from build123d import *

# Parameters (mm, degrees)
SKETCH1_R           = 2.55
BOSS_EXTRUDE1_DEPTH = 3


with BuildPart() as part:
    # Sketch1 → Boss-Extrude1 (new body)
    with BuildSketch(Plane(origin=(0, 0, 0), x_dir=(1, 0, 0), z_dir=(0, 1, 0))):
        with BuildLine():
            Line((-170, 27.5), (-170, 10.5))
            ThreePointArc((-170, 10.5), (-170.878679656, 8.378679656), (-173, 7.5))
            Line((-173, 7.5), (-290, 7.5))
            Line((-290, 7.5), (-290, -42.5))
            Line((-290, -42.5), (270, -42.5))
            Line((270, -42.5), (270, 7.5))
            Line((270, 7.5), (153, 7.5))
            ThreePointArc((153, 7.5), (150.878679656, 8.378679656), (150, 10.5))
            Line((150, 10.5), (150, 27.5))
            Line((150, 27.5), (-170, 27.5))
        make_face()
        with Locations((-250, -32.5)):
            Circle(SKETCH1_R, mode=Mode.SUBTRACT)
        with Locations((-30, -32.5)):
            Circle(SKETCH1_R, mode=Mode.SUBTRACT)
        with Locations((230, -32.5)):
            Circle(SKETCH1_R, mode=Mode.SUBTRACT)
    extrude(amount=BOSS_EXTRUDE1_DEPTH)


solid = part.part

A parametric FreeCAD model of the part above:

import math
import FreeCAD as App
import Part
import Sketcher
from FreeCAD import Vector
Q = App.Units.Quantity

doc = App.newDocument("Part")
body = doc.addObject("PartDesign::Body", "Body")

# Sketch on XZ plane
sketch1 = doc.addObject("Sketcher::SketchObject", "Sketch")
body.addObject(sketch1)
sketch1.AttachmentSupport = (doc.XZ_Plane, [""])
sketch1.MapMode = "FlatFace"
sketch1.addGeometry(Part.LineSegment(Vector(-170, -27.5, 0), Vector(-170, -10.5, 0)), False)
sketch1.addGeometry(Part.ArcOfCircle(Part.Circle(Vector(-173, -10.5, 0), Vector(0, 0, 1), 3), math.radians(0), math.radians(90)), False)
sketch1.addGeometry(Part.LineSegment(Vector(-173, -7.5, 0), Vector(-290, -7.5, 0)), False)
sketch1.addGeometry(Part.LineSegment(Vector(-290, -7.5, 0), Vector(-290, 42.5, 0)), False)
sketch1.addGeometry(Part.LineSegment(Vector(-290, 42.5, 0), Vector(270, 42.5, 0)), False)
sketch1.addGeometry(Part.LineSegment(Vector(270, 42.5, 0), Vector(270, -7.5, 0)), False)
sketch1.addGeometry(Part.LineSegment(Vector(270, -7.5, 0), Vector(153, -7.5, 0)), False)
sketch1.addGeometry(Part.ArcOfCircle(Part.Circle(Vector(153, -10.5, 0), Vector(0, 0, 1), 3), math.radians(90), math.radians(180)), False)
sketch1.addGeometry(Part.LineSegment(Vector(150, -10.5, 0), Vector(150, -27.5, 0)), False)
sketch1.addGeometry(Part.LineSegment(Vector(150, -27.5, 0), Vector(-170, -27.5, 0)), False)
sketch1.addGeometry(Part.Circle(Vector(-250, 32.5, 0), Vector(0, 0, 1), 2.55), False)
sketch1.addGeometry(Part.Circle(Vector(-30, 32.5, 0), Vector(0, 0, 1), 2.55), False)
sketch1.addGeometry(Part.Circle(Vector(230, 32.5, 0), Vector(0, 0, 1), 2.55), False)
sketch1.addConstraint(Sketcher.Constraint("Tangent", 0, 2, 1, 1))
sketch1.addConstraint(Sketcher.Constraint("Tangent", 1, 2, 2, 1))
sketch1.addConstraint(Sketcher.Constraint("Coincident", 2, 2, 3, 1))
sketch1.addConstraint(Sketcher.Constraint("Coincident", 3, 2, 4, 1))
sketch1.addConstraint(Sketcher.Constraint("Coincident", 4, 2, 5, 1))
sketch1.addConstraint(Sketcher.Constraint("Coincident", 5, 2, 6, 1))
sketch1.addConstraint(Sketcher.Constraint("Tangent", 6, 2, 7, 1))
sketch1.addConstraint(Sketcher.Constraint("Tangent", 7, 2, 8, 1))
sketch1.addConstraint(Sketcher.Constraint("Coincident", 8, 2, 9, 1))
sketch1.addConstraint(Sketcher.Constraint("Coincident", 9, 2, 0, 1))
sketch1.addConstraint(Sketcher.Constraint("Vertical", 0))
sketch1.addConstraint(Sketcher.Constraint("Horizontal", 2))
sketch1.addConstraint(Sketcher.Constraint("Vertical", 3))
sketch1.addConstraint(Sketcher.Constraint("Horizontal", 4))
sketch1.addConstraint(Sketcher.Constraint("Vertical", 5))
sketch1.addConstraint(Sketcher.Constraint("Horizontal", 6))
sketch1.addConstraint(Sketcher.Constraint("Vertical", 8))
sketch1.addConstraint(Sketcher.Constraint("Horizontal", 9))
sketch1.addConstraint(Sketcher.Constraint("Equal", 1, 7))
sketch1.addConstraint(Sketcher.Constraint("Equal", 10, 11))
sketch1.addConstraint(Sketcher.Constraint("Equal", 11, 12))
sketch1.addConstraint(Sketcher.Constraint("Horizontal", 1, 3, 7, 3))
sketch1.addConstraint(Sketcher.Constraint("Horizontal", 10, 3, 11, 3))
sketch1.addConstraint(Sketcher.Constraint("Horizontal", 11, 3, 12, 3))
sketch1.addConstraint(Sketcher.Constraint("Equal", 2, 6))
sketch1.addConstraint(Sketcher.Constraint("Radius", 1, Q("3 mm")))
sketch1.addConstraint(Sketcher.Constraint("Diameter", 10, Q("5.1 mm")))
sketch1.addConstraint(Sketcher.Constraint("DistanceX", 2, 2, 2, 1, Q("117 mm")))
sketch1.addConstraint(Sketcher.Constraint("DistanceX", 4, 1, 4, 2, Q("560 mm")))
sketch1.addConstraint(Sketcher.Constraint("DistanceY", 0, 1, 0, 2, Q("17 mm")))
sketch1.addConstraint(Sketcher.Constraint("DistanceY", 3, 1, 3, 2, Q("50 mm")))
sketch1.addConstraint(Sketcher.Constraint("DistanceX", 1, 3, -1, 1, Q("173 mm")))
sketch1.addConstraint(Sketcher.Constraint("DistanceX", 10, 3, -1, 1, Q("250 mm")))
sketch1.addConstraint(Sketcher.Constraint("DistanceX", 11, 3, -1, 1, Q("30 mm")))
sketch1.addConstraint(Sketcher.Constraint("DistanceX", -1, 1, 12, 3, Q("230 mm")))
sketch1.addConstraint(Sketcher.Constraint("DistanceY", 1, 3, 10, 3, Q("43 mm")))
sketch1.addConstraint(Sketcher.Constraint("DistanceY", 1, 3, -1, 1, Q("10.5 mm")))
pad1 = doc.addObject("PartDesign::Pad", "Pad")
body.addObject(pad1)
pad1.Profile = sketch1
pad1.Length = 3
pad1.Reversed = True

doc.recompute()
